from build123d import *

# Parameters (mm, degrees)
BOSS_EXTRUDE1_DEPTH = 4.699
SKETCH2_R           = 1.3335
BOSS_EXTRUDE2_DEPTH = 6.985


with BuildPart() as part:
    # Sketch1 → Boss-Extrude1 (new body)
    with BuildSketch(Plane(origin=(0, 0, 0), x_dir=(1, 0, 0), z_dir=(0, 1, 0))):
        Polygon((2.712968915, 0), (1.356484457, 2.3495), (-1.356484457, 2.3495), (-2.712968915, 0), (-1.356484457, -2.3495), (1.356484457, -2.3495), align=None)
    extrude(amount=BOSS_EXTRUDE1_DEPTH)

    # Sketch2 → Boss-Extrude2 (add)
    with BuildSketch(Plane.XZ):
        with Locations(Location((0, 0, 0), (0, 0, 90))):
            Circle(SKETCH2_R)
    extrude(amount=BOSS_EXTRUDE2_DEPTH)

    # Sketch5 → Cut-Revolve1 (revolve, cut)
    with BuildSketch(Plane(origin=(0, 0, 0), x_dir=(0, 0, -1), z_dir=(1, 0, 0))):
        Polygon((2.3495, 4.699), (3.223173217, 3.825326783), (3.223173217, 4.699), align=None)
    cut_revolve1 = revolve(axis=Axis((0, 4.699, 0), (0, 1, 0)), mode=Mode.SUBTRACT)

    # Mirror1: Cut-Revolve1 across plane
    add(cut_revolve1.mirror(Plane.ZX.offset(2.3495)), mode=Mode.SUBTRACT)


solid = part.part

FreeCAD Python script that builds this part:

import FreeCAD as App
import Part
import Sketcher

V = App.Vector
Q = App.Units.Quantity

doc = App.newDocument("Part")
body = doc.addObject("PartDesign::Body", "Body")

# Sketch on XZ plane
sketch1 = body.newObject("Sketcher::SketchObject", "Sketch")
sketch1.AttachmentSupport = (doc.getObject("XZ_Plane"), [""])
sketch1.MapMode = "FlatFace"
sketch1.addGeometry([
    Part.LineSegment(V(2.7, 0, 0), V(1.4, -2.3, 0)),  # 0
    Part.LineSegment(V(1.4, -2.3, 0), V(-1.4, -2.3, 0)),  # 1
    Part.LineSegment(V(-1.4, -2.3, 0), V(-2.7, 0, 0)),  # 2
    Part.LineSegment(V(-2.7, 0, 0), V(-1.4, 2.3, 0)),  # 3
    Part.LineSegment(V(-1.4, 2.3, 0), V(1.4, 2.3, 0)),  # 4
    Part.LineSegment(V(1.4, 2.3, 0), V(2.7, 0, 0)),  # 5
], False)
sketch1.addConstraint([
    Sketcher.Constraint("Coincident", 0, 2, 1, 1),
    Sketcher.Constraint("Coincident", 1, 2, 2, 1),
    Sketcher.Constraint("Coincident", 2, 2, 3, 1),
    Sketcher.Constraint("Coincident", 3, 2, 4, 1),
    Sketcher.Constraint("Coincident", 4, 2, 5, 1),
    Sketcher.Constraint("Coincident", 5, 2, 0, 1),
    Sketcher.Constraint("Horizontal", 1),
    Sketcher.Constraint("Horizontal", 4),
    Sketcher.Constraint("Symmetric", 0, 2, 3, 2, -1, 1),
    Sketcher.Constraint("Symmetric", 2, 2, 5, 2, -1, 1),
    Sketcher.Constraint("PointOnObject", 2, 2, -1),
    Sketcher.Constraint("Parallel", 2, 5),
    Sketcher.Constraint("Vertical", 1, 2, 3, 2),
    Sketcher.Constraint("Angle", 0, Q("-120 deg")),
    Sketcher.Constraint("DistanceY", 1, 2, 3, 2, Q("0.185 in")),
    Sketcher.Constraint("DistanceX", 1, 2, 1, 1, Q("2.712969 mm")),
])
pad1 = body.newObject("PartDesign::Pad", "Pad")
pad1.Profile = sketch1
pad1.Length = Q("0.185 in")
pad1.Reversed = True

# Sketch on XZ plane
sketch2 = body.newObject("Sketcher::SketchObject", "Sketch001")
sketch2.AttachmentSupport = (doc.getObject("XZ_Plane"), [""])
sketch2.MapMode = "FlatFace"
sketch2.addGeometry(Part.Circle(V(0, 0, 0), V(0, 0, 1), 1.3), False)
sketch2.addConstraint([
    Sketcher.Constraint("Coincident", 0, 3, -1, 1),
    Sketcher.Constraint("Diameter", 0, Q("0.105 in")),
])
pad2 = body.newObject("PartDesign::Pad", "Pad001")
pad2.Profile = sketch2
pad2.Length = Q("0.275 in")

# Sketch on YZ plane
sketch3 = body.newObject("Sketcher::SketchObject", "Sketch002")
sketch3.AttachmentSupport = (doc.getObject("YZ_Plane"), [""])
sketch3.MapMode = "FlatFace"
sketch3.addGeometry([
    Part.LineSegment(V(4.7, -2.3, 0), V(3.8, -3.2, 0)),
    Part.LineSegment(V(3.8, -3.2, 0), V(4.7, -3.2, 0)),
    Part.LineSegment(V(4.7, -3.2, 0), V(4.7, -2.3, 0)),
], False)
sketch3.addConstraint([
    Sketcher.Constraint("Coincident", 0, 2, 1, 1),
    Sketcher.Constraint("Coincident", 1, 2, 2, 1),
    Sketcher.Constraint("Coincident", 2, 2, 0, 1),
    Sketcher.Constraint("Horizontal", 1),
    Sketcher.Constraint("Vertical", 2),
    Sketcher.Constraint("Equal", 1, 2),
    Sketcher.Constraint("DistanceX", -1, 1, 1, 2, Q("0.185 in")),
    Sketcher.Constraint("DistanceY", 2, 2, -1, 1, Q("0.0925 in")),
    Sketcher.Constraint("Distance", 0, Q("1.235561 mm")),
])
groove = body.newObject("PartDesign::Groove", "Groove")
groove.Profile = sketch3
groove.ReferenceAxis = (sketch3, ["H_Axis"])
groove.Angle = 360
doc.recompute()

datumplane = body.newObject("PartDesign::Plane", "DatumPlane")
datumplane.AttachmentSupport = (doc.getObject("XZ_Plane"), [""])
datumplane.MapMode = "FlatFace"
datumplane.AttachmentOffset = App.Placement(V(0, 0, -0.0925 * 25.4), App.Rotation())
mirrored = body.newObject("PartDesign::Mirrored", "Mirrored")
mirrored.Originals = [groove]
mirrored.MirrorPlane = (datumplane, [""])
body.Tip = mirrored

doc.recompute()
